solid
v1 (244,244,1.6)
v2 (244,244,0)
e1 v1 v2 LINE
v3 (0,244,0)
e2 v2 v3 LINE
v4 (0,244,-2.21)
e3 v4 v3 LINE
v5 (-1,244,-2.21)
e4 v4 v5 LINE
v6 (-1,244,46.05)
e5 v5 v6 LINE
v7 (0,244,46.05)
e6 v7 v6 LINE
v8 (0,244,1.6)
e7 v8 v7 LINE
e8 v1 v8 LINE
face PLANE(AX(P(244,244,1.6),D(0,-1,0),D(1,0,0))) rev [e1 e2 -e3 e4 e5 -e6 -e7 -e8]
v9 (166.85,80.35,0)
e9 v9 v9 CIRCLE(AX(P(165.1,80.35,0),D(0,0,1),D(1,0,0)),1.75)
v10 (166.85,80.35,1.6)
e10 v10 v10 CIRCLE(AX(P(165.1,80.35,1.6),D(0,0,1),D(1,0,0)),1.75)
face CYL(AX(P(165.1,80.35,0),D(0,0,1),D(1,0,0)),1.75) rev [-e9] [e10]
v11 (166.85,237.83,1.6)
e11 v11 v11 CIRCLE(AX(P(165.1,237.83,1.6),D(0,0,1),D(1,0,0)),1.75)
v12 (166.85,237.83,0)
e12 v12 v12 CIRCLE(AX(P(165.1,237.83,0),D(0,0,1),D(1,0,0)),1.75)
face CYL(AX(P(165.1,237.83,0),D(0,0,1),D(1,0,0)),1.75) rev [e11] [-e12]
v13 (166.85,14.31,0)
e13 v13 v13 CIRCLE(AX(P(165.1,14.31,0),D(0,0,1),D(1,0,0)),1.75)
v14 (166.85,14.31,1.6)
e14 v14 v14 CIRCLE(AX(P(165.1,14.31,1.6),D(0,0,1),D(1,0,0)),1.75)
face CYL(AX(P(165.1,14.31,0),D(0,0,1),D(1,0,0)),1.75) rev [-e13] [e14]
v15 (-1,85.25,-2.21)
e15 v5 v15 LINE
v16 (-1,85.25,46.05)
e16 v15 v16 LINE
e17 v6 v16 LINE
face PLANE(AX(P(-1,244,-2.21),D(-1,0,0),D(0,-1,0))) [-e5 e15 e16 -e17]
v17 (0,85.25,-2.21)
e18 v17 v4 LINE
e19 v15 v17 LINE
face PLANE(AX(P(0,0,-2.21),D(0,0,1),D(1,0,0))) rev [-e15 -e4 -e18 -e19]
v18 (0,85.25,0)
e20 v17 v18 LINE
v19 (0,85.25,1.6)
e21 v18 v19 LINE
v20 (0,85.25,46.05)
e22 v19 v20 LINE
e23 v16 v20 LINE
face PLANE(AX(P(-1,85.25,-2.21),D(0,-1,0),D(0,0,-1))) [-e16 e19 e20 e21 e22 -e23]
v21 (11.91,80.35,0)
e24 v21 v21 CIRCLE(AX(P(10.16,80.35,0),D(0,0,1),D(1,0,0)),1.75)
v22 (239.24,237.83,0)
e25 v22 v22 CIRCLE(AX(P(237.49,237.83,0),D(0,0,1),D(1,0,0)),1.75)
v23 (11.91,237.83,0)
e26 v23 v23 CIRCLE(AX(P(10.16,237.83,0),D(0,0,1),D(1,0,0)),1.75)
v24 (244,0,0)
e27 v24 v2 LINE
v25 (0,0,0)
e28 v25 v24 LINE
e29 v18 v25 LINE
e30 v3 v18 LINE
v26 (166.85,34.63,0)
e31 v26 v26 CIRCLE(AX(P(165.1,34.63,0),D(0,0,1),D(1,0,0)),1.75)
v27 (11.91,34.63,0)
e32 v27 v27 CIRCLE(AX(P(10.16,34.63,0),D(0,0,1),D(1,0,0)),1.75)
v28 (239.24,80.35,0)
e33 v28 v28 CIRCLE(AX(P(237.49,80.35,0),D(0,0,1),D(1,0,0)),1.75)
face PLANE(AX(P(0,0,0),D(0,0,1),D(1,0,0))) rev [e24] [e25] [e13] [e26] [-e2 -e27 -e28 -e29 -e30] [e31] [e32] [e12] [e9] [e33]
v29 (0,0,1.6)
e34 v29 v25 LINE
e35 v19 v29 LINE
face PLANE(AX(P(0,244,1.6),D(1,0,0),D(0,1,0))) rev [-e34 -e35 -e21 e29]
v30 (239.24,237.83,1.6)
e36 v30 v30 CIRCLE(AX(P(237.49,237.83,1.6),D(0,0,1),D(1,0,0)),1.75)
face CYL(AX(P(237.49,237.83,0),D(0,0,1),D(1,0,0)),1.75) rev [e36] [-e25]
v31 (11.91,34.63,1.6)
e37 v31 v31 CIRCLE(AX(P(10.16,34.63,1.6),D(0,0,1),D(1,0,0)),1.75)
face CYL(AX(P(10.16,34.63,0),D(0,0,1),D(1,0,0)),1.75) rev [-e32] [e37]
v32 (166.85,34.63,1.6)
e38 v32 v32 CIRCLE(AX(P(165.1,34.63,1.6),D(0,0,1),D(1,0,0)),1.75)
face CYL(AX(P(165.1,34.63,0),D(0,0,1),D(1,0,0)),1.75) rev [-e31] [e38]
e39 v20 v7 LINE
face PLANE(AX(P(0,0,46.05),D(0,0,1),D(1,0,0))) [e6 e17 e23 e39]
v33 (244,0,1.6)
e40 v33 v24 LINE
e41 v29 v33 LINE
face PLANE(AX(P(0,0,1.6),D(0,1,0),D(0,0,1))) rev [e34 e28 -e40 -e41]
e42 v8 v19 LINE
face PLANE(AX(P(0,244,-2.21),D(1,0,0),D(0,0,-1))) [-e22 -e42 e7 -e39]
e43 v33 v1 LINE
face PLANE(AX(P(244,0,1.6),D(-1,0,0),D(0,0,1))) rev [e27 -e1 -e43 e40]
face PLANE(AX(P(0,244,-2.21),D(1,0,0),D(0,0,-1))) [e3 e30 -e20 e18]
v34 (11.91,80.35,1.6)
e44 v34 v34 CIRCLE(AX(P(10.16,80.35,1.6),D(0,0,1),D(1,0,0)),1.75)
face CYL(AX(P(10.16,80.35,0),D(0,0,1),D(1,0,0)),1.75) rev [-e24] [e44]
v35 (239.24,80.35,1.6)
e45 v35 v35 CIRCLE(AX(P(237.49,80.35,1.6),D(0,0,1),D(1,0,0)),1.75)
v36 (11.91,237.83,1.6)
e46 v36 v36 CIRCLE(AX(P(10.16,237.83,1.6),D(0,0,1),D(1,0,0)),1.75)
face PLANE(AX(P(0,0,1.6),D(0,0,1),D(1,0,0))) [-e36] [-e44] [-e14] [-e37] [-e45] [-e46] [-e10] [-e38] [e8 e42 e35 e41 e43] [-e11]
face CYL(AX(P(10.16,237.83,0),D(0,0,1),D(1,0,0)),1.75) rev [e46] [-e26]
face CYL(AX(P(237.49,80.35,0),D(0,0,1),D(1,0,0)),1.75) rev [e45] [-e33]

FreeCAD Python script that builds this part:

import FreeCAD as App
import Part
import Sketcher
from FreeCAD import Vector
Q = App.Units.Quantity

doc = App.newDocument("Part")
params = doc.addObject("Spreadsheet::Sheet", "Params")
for row, (alias, value) in enumerate([
    ("sketch1_width", "244 mm"),
    ("pad1_length", "1.6 mm"),
    ("sketch2_diameter", "3.5 mm"),
    ("sketch3_width", "1 mm"),
    ("sketch3_height", "158.75 mm"),
    ("pad2_length", "44.45 mm"),
    ("pad2_length2", "3.81 mm"),
], start=1):
    params.set(f"A{row}", alias)
    params.set(f"B{row}", "=" + value)
    params.setAlias(f"B{row}", alias)

body = doc.addObject("PartDesign::Body", "Body")

sketch1 = body.newObject("Sketcher::SketchObject", "Sketch")
sketch1.AttachmentSupport = (doc.getObject("XY_Plane"), [""])
sketch1.MapMode = "FlatFace"
sketch1.addGeometry(Part.LineSegment(Vector(0, 244, 0), Vector(0, 0, 0)), False)
sketch1.addGeometry(Part.LineSegment(Vector(0, 0, 0), Vector(244, 0, 0)), False)
sketch1.addGeometry(Part.LineSegment(Vector(244, 0, 0), Vector(244, 244, 0)), False)
sketch1.addGeometry(Part.LineSegment(Vector(244, 244, 0), Vector(0, 244, 0)), False)
sketch1.addConstraint(Sketcher.Constraint("Coincident", 0, 2, 1, 1))
sketch1.addConstraint(Sketcher.Constraint("Coincident", 1, 2, 2, 1))
sketch1.addConstraint(Sketcher.Constraint("Coincident", 2, 2, 3, 1))
sketch1.addConstraint(Sketcher.Constraint("Coincident", 3, 2, 0, 1))
sketch1.addConstraint(Sketcher.Constraint("Vertical", 0))
sketch1.addConstraint(Sketcher.Constraint("Horizontal", 1))
sketch1.addConstraint(Sketcher.Constraint("Vertical", 2))
sketch1.addConstraint(Sketcher.Constraint("Horizontal", 3))
sketch1.addConstraint(Sketcher.Constraint("Coincident", 0, 2, -1, 1))
sketch1.addConstraint(Sketcher.Constraint("Equal", 3, 0))
sketch1.addConstraint(Sketcher.Constraint("DistanceX", 1, 1, 1, 2, Q("244 mm")))
sketch1.setExpression("Constraints[10]", "Params.sketch1_width")
pad1 = body.newObject("PartDesign::Pad", "Pad")
pad1.Profile = sketch1
pad1.setExpression("Length", "Params.pad1_length")

sketch2 = body.newObject("Sketcher::SketchObject", "Sketch001")
sketch2.AttachmentSupport = (doc.getObject("XY_Plane"), [""])
sketch2.MapMode = "FlatFace"
sketch2.AttachmentOffset = App.Placement(Vector(0, 0, 1.6), App.Rotation())
sketch2.addGeometry(Part.Circle(Vector(10.2, 34.6, 0), Vector(0, 0, 1), 1.8), False)
sketch2.addGeometry(Part.Circle(Vector(10.2, 80.3, 0), Vector(0, 0, 1), 1.8), False)
sketch2.addGeometry(Part.Circle(Vector(165.1, 34.6, 0), Vector(0, 0, 1), 1.8), False)
sketch2.addGeometry(Part.Circle(Vector(165.1, 80.3, 0), Vector(0, 0, 1), 1.8), False)
sketch2.addGeometry(Part.Circle(Vector(165.1, 14.3, 0), Vector(0, 0, 1), 1.8), False)
sketch2.addGeometry(Part.Circle(Vector(237.5, 80.3, 0), Vector(0, 0, 1), 1.8), False)
sketch2.addGeometry(Part.Circle(Vector(10.2, 237.8, 0), Vector(0, 0, 1), 1.8), False)
sketch2.addGeometry(Part.Circle(Vector(165.1, 237.8, 0), Vector(0, 0, 1), 1.8), False)
sketch2.addGeometry(Part.Circle(Vector(237.5, 237.8, 0), Vector(0, 0, 1), 1.8), False)
sketch2.addConstraint(Sketcher.Constraint("Equal", 0, 1))
sketch2.addConstraint(Sketcher.Constraint("Equal", 1, 2))
sketch2.addConstraint(Sketcher.Constraint("Equal", 2, 3))
sketch2.addConstraint(Sketcher.Constraint("Equal", 3, 4))
sketch2.addConstraint(Sketcher.Constraint("Equal", 4, 5))
sketch2.addConstraint(Sketcher.Constraint("Equal", 5, 6))
sketch2.addConstraint(Sketcher.Constraint("Equal", 6, 7))
sketch2.addConstraint(Sketcher.Constraint("Equal", 7, 8))
sketch2.addConstraint(Sketcher.Constraint("Horizontal", 0, 3, 2, 3))
sketch2.addConstraint(Sketcher.Constraint("Horizontal", 1, 3, 3, 3))
sketch2.addConstraint(Sketcher.Constraint("Horizontal", 3, 3, 5, 3))
sketch2.addConstraint(Sketcher.Constraint("Horizontal", 6, 3, 7, 3))
sketch2.addConstraint(Sketcher.Constraint("Horizontal", 7, 3, 8, 3))
sketch2.addConstraint(Sketcher.Constraint("Vertical", 0, 3, 1, 3))
sketch2.addConstraint(Sketcher.Constraint("Vertical", 2, 3, 3, 3))
sketch2.addConstraint(Sketcher.Constraint("Vertical", 3, 3, 4, 3))
sketch2.addConstraint(Sketcher.Constraint("Vertical", 1, 3, 6, 3))
sketch2.addConstraint(Sketcher.Constraint("Vertical", 4, 3, 7, 3))
sketch2.addConstraint(Sketcher.Constraint("Vertical", 5, 3, 8, 3))
sketch2.addConstraint(Sketcher.Constraint("Diameter", 0, Q("3.5 mm")))
sketch2.addConstraint(Sketcher.Constraint("DistanceX", -1, 1, 2, 3, Q("165.1 mm")))
sketch2.addConstraint(Sketcher.Constraint("DistanceY", 0, 3, 6, 3, Q("203.2 mm")))
sketch2.addConstraint(Sketcher.Constraint("DistanceX", -1, 1, 0, 3, Q("10.16 mm")))
sketch2.addConstraint(Sketcher.Constraint("DistanceY", -1, 1, 0, 3, Q("34.63 mm")))
sketch2.addConstraint(Sketcher.Constraint("DistanceY", -1, 1, 1, 3, Q("80.35 mm")))
sketch2.addConstraint(Sketcher.Constraint("DistanceY", -1, 1, 4, 3, Q("14.31 mm")))
sketch2.addConstraint(Sketcher.Constraint("DistanceX", -1, 1, 5, 3, Q("237.49 mm")))
sketch2.setExpression("Constraints[19]", "Params.sketch2_diameter")
pocket1 = body.newObject("PartDesign::Pocket", "Pocket")
pocket1.Profile = sketch2
pocket1.Type = "ThroughAll"

sketch3 = body.newObject("Sketcher::SketchObject", "Sketch002")
sketch3.AttachmentSupport = (doc.getObject("XY_Plane"), [""])
sketch3.MapMode = "FlatFace"
sketch3.AttachmentOffset = App.Placement(Vector(0, 0, 1.6), App.Rotation())
sketch3.addGeometry(Part.LineSegment(Vector(-1, 244, 0), Vector(-1, 85.2, 0)), False)
sketch3.addGeometry(Part.LineSegment(Vector(-1, 85.2, 0), Vector(0, 85.2, 0)), False)
sketch3.addGeometry(Part.LineSegment(Vector(0, 85.2, 0), Vector(0, 244, 0)), False)
sketch3.addGeometry(Part.LineSegment(Vector(0, 244, 0), Vector(-1, 244, 0)), False)
sketch3.addConstraint(Sketcher.Constraint("Coincident", 0, 2, 1, 1))
sketch3.addConstraint(Sketcher.Constraint("Coincident", 1, 2, 2, 1))
sketch3.addConstraint(Sketcher.Constraint("Coincident", 2, 2, 3, 1))
sketch3.addConstraint(Sketcher.Constraint("Coincident", 3, 2, 0, 1))
sketch3.addConstraint(Sketcher.Constraint("Vertical", 0))
sketch3.addConstraint(Sketcher.Constraint("Horizontal", 1))
sketch3.addConstraint(Sketcher.Constraint("Vertical", 2))
sketch3.addConstraint(Sketcher.Constraint("Horizontal", 3))
sketch3.addConstraint(Sketcher.Constraint("PointOnObject", 1, 2, -2))
sketch3.addConstraint(Sketcher.Constraint("DistanceX", 1, 1, 1, 2, Q("1 mm")))
sketch3.addConstraint(Sketcher.Constraint("DistanceY", -1, 1, 2, 2, Q("244 mm")))
sketch3.addConstraint(Sketcher.Constraint("DistanceY", 0, 2, 0, 1, Q("158.75 mm")))
sketch3.setExpression("Constraints[9]", "Params.sketch3_width")
sketch3.setExpression("Constraints[11]", "Params.sketch3_height")
pad2 = body.newObject("PartDesign::Pad", "Pad001")
pad2.Profile = sketch3
pad2.Type = "TwoLengths"
pad2.setExpression("Length", "Params.pad2_length")
pad2.setExpression("Length2", "Params.pad2_length2")

doc.recompute()
